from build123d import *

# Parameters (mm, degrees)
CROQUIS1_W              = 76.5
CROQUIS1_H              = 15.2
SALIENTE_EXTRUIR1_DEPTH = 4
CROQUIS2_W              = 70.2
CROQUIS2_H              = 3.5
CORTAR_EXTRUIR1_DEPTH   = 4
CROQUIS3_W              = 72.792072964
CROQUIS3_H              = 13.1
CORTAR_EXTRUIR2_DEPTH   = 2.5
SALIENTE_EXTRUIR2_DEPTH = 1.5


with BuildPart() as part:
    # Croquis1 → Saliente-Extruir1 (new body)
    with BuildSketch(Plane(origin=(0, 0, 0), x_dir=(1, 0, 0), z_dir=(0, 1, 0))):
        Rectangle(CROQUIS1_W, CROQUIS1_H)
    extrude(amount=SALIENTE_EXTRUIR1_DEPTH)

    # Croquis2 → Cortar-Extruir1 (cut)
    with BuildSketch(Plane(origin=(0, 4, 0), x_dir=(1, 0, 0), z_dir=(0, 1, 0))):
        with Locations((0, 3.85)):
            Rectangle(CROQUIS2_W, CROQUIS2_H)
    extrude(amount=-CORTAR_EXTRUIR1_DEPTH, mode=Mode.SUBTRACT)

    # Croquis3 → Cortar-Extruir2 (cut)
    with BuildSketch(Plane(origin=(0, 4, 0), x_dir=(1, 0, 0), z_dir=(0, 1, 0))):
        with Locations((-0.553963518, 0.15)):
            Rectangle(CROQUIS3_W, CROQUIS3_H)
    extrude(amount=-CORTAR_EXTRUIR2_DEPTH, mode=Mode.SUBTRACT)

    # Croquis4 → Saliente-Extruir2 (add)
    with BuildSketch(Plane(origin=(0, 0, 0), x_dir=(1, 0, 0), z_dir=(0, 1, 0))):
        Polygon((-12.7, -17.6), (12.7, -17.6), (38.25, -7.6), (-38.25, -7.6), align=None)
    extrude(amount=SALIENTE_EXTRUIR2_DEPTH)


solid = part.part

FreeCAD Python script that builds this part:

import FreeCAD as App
import Part
import Sketcher

V = App.Vector


def add_polygon(sketch, points):
    """Adds a closed chain of lines whose ends are joined by coincident constraints."""
    first, n = sketch.GeometryCount, len(points)
    for a, b in zip(points, points[1:] + points[:1]):
        sketch.addGeometry(Part.LineSegment(App.Vector(*a, 0), App.Vector(*b, 0)), False)
    for i in range(n):
        sketch.addConstraint(Sketcher.Constraint("Coincident", first + i, 2, first + (i + 1) % n, 1))

doc = App.newDocument("Part")
body = doc.addObject("PartDesign::Body", "Body")

sketch1 = doc.addObject("Sketcher::SketchObject", "Sketch")
body.addObject(sketch1)
sketch1.AttachmentSupport = (doc.XZ_Plane, [""])
sketch1.MapMode = "FlatFace"
add_polygon(sketch1, [(-38, -8), (-38, 8), (38, 8), (38, -8)])
sketch1.addConstraint(Sketcher.Constraint("Vertical", 0))
sketch1.addConstraint(Sketcher.Constraint("Horizontal", 1))
sketch1.addConstraint(Sketcher.Constraint("Vertical", 2))
sketch1.addConstraint(Sketcher.Constraint("Horizontal", 3))
sketch1.addConstraint(Sketcher.Constraint("Symmetric", 0, 2, 2, 2, -1, 1))
sketch1.addConstraint(Sketcher.Constraint("DistanceX", 1, 1, 1, 2, 76.5))
sketch1.addConstraint(Sketcher.Constraint("DistanceY", 0, 1, 0, 2, 15.2))
pad1 = doc.addObject("PartDesign::Pad", "Pad")
body.addObject(pad1)
pad1.Profile = sketch1
pad1.Length = 4
pad1.Reversed = True

sketch2 = doc.addObject("Sketcher::SketchObject", "Sketch001")
body.addObject(sketch2)
sketch2.AttachmentSupport = (doc.XZ_Plane, [""])
sketch2.MapMode = "FlatFace"
sketch2.AttachmentOffset = App.Placement(V(0, 0, -4), App.Rotation())
add_polygon(sketch2, [(-35.1, -5.6), (-35.1, -2.1), (35.1, -2.1), (35.1, -5.6)])
sketch2.addConstraint(Sketcher.Constraint("Vertical", 0))
sketch2.addConstraint(Sketcher.Constraint("Horizontal", 1))
sketch2.addConstraint(Sketcher.Constraint("Vertical", 2))
sketch2.addConstraint(Sketcher.Constraint("Horizontal", 3))
sketch2.addConstraint(Sketcher.Constraint("DistanceX", 1, 1, 1, 2, 70.2))
sketch2.addConstraint(Sketcher.Constraint("DistanceY", 0, 1, 0, 2, 3.5))
sketch2.addConstraint(Sketcher.Constraint("DistanceX", 0, 2, -1, 1, 35.1))
sketch2.addConstraint(Sketcher.Constraint("DistanceY", 0, 2, -1, 1, 2.1))
pocket1 = doc.addObject("PartDesign::Pocket", "Pocket")
body.addObject(pocket1)
pocket1.Profile = sketch2
pocket1.Length = 4
pocket1.Reversed = True

sketch3 = doc.addObject("Sketcher::SketchObject", "Sketch002")
body.addObject(sketch3)
sketch3.AttachmentSupport = (doc.XZ_Plane, [""])
sketch3.MapMode = "FlatFace"
sketch3.AttachmentOffset = App.Placement(V(0, 0, -4), App.Rotation())
add_polygon(sketch3, [(-37, -7), (-37, 6), (36, 6), (36, -7)])
sketch3.addConstraint(Sketcher.Constraint("Vertical", 0))
sketch3.addConstraint(Sketcher.Constraint("Horizontal", 1))
sketch3.addConstraint(Sketcher.Constraint("Vertical", 2))
sketch3.addConstraint(Sketcher.Constraint("Horizontal", 3))
sketch3.addConstraint(Sketcher.Constraint("DistanceY", 0, 1, 0, 2, 13.1))
sketch3.addConstraint(Sketcher.Constraint("DistanceY", -1, 1, 0, 2, 6.4))
sketch3.addConstraint(Sketcher.Constraint("DistanceX", 0, 2, -1, 1, 36.95))
sketch3.addConstraint(Sketcher.Constraint("DistanceX", 1, 1, 1, 2, 72.792073))
pocket2 = doc.addObject("PartDesign::Pocket", "Pocket001")
body.addObject(pocket2)
pocket2.Profile = sketch3
pocket2.Length = 2.5
pocket2.Reversed = True

sketch4 = doc.addObject("Sketcher::SketchObject", "Sketch003")
body.addObject(sketch4)
sketch4.AttachmentSupport = (doc.XZ_Plane, [""])
sketch4.MapMode = "FlatFace"
add_polygon(sketch4, [(-13, 18), (13, 18), (38, 8), (-38, 8)])
sketch4.addConstraint(Sketcher.Constraint("Horizontal", 0))
sketch4.addConstraint(Sketcher.Constraint("Horizontal", 2))
sketch4.addConstraint(Sketcher.Constraint("Equal", 1, 3))
sketch4.addConstraint(Sketcher.Constraint("DistanceX", 0, 1, 0, 2, 25.4))
sketch4.addConstraint(Sketcher.Constraint("DistanceX", 2, 2, 2, 1, 76.5))
sketch4.addConstraint(Sketcher.Constraint("DistanceY", 1, 2, 0, 2, 10.0))
sketch4.addConstraint(Sketcher.Constraint("DistanceX", -1, 1, 0, 2, 12.7))
sketch4.addConstraint(Sketcher.Constraint("DistanceY", -1, 1, 0, 2, 17.6))
pad2 = doc.addObject("PartDesign::Pad", "Pad001")
body.addObject(pad2)
pad2.Profile = sketch4
pad2.Length = 1.5
pad2.Reversed = True

doc.recompute()
